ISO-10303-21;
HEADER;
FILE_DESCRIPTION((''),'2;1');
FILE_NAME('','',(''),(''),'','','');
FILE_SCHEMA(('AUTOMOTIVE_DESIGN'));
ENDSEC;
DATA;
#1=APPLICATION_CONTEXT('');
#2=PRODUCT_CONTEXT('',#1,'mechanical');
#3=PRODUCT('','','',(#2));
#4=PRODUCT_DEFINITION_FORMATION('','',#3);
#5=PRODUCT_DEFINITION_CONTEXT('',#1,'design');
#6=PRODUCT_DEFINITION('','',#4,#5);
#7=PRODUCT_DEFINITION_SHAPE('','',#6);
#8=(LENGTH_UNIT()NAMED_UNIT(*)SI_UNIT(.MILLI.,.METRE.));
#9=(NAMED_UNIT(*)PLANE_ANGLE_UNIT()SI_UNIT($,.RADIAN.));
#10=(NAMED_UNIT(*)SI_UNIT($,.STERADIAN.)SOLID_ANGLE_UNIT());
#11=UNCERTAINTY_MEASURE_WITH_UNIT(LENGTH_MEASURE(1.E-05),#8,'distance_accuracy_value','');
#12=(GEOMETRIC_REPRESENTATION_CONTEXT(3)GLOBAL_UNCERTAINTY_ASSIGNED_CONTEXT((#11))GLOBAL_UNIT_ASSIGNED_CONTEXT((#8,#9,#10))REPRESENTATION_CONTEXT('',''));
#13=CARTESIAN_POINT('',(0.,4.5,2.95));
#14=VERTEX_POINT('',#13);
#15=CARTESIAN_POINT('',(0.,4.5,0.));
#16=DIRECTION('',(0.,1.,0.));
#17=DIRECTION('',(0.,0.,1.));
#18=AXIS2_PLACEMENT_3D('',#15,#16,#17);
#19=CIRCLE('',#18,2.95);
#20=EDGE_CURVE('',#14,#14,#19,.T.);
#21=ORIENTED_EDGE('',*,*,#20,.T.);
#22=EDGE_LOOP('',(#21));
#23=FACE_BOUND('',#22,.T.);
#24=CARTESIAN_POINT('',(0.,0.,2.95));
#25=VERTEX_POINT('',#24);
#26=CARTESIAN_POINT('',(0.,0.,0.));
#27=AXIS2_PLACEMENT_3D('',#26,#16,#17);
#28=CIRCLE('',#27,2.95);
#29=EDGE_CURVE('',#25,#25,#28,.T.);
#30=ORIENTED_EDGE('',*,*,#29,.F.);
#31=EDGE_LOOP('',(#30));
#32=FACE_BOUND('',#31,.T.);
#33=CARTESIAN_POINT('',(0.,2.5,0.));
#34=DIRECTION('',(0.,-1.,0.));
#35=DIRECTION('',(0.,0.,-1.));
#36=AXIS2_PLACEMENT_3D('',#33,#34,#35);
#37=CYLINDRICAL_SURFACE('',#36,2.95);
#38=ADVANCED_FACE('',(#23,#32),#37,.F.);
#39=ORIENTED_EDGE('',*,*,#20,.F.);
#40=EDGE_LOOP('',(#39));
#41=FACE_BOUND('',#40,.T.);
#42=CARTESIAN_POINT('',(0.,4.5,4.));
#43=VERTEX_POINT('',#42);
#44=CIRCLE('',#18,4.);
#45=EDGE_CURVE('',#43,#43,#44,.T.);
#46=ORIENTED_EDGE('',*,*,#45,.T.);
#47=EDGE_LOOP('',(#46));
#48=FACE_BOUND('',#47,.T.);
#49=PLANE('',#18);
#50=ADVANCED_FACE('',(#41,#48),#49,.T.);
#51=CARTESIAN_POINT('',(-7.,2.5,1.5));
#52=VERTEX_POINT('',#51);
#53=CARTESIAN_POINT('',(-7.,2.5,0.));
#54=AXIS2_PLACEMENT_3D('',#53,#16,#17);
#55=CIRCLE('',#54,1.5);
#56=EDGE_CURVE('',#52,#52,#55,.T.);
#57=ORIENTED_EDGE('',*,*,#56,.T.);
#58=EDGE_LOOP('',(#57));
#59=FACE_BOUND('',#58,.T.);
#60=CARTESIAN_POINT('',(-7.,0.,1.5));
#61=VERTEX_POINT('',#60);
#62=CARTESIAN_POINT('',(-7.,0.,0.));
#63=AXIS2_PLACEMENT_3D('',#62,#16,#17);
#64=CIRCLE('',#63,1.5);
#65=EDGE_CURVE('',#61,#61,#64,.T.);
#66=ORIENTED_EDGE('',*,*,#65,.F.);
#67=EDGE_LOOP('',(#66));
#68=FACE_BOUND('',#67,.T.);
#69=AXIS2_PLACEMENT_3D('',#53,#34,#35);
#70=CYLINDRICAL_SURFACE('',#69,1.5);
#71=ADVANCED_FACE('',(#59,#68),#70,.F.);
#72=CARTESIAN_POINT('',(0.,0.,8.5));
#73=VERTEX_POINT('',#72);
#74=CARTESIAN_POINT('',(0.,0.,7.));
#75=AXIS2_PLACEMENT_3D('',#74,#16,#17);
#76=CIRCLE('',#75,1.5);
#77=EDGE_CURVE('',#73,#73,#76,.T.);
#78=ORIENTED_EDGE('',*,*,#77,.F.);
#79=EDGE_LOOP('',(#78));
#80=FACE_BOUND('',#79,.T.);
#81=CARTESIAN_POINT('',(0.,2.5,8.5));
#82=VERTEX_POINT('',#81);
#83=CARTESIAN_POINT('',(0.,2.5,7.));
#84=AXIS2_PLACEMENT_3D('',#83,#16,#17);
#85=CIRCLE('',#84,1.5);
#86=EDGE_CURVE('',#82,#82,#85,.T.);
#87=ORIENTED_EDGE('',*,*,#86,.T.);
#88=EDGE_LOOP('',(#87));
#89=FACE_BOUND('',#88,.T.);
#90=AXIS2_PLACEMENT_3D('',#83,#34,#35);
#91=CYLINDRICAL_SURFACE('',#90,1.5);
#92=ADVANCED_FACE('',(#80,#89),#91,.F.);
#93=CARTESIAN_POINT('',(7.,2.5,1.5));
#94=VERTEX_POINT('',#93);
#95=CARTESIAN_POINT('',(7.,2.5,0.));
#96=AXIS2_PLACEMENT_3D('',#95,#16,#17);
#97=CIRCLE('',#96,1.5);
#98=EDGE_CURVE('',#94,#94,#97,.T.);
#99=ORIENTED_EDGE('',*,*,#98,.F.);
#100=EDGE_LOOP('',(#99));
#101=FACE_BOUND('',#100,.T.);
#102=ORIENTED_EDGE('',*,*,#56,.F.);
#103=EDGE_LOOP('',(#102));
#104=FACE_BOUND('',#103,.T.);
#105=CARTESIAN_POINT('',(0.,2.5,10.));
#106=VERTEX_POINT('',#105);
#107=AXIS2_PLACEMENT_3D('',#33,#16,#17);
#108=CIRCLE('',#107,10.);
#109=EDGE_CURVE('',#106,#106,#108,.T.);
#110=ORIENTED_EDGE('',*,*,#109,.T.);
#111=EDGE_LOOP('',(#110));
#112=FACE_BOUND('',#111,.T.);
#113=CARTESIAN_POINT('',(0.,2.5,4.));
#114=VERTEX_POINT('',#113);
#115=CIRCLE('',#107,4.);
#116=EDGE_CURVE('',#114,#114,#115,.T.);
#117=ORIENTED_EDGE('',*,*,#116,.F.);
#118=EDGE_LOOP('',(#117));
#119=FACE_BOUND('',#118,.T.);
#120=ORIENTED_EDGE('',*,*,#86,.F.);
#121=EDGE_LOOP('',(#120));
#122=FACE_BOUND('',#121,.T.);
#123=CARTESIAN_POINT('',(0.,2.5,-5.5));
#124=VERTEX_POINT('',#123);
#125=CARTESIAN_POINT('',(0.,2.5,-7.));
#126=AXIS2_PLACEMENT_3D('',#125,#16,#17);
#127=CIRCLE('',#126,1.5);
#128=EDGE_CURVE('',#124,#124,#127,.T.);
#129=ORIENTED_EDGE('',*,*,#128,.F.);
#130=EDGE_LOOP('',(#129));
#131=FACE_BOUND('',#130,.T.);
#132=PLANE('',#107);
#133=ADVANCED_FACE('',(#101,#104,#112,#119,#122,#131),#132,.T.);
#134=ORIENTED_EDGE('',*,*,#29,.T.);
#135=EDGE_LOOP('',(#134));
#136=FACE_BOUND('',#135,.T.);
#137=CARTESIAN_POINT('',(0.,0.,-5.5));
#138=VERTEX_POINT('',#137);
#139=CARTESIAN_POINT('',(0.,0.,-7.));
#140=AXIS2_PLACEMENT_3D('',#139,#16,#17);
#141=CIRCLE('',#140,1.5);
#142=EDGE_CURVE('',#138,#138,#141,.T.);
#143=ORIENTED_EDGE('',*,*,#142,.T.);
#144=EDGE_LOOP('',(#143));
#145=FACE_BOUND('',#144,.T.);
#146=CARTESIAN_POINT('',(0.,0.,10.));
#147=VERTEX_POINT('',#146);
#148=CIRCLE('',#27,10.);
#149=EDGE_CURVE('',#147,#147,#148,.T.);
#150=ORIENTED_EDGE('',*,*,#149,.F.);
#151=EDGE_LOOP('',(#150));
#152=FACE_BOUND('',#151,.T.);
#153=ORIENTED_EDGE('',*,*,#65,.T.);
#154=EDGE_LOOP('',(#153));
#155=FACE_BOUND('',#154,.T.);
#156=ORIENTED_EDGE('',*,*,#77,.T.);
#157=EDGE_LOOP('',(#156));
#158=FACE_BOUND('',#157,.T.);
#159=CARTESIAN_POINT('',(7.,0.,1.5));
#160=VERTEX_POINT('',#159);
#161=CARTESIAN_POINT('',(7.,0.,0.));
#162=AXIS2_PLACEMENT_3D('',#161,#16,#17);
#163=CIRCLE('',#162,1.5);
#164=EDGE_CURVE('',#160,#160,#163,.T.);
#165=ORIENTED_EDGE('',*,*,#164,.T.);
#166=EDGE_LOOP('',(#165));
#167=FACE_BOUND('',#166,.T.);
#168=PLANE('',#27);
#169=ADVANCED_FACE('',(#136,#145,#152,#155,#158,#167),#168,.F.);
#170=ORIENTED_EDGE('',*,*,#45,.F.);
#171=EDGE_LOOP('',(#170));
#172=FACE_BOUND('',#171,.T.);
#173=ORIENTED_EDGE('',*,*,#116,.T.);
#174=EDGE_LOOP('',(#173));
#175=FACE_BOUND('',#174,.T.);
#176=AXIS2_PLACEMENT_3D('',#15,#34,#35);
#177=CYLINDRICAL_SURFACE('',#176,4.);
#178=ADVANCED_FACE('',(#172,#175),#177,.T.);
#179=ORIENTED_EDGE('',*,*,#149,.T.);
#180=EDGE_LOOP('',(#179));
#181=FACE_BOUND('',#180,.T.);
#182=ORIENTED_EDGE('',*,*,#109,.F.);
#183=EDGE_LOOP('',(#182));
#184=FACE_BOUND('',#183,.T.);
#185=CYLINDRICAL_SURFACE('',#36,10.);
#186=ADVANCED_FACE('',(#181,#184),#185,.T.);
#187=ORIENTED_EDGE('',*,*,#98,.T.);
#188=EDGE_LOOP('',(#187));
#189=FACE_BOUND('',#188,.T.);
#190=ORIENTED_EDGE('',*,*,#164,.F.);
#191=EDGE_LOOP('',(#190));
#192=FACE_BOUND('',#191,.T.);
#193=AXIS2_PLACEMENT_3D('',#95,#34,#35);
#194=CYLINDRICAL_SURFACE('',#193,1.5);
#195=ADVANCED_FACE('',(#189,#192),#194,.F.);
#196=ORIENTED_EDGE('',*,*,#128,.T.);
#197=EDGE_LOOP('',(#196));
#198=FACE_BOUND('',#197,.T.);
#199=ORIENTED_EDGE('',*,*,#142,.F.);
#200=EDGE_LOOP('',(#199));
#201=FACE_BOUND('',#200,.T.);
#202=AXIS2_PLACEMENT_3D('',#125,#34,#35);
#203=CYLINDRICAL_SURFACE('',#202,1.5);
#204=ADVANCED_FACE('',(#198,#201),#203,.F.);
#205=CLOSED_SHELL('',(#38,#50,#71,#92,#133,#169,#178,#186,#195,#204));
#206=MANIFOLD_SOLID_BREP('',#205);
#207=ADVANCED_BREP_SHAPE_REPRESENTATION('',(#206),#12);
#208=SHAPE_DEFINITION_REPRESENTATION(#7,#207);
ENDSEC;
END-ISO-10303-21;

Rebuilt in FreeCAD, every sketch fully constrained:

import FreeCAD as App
import Part
import Sketcher

V = App.Vector
Q = App.Units.Quantity

doc = App.newDocument("Part")
body = doc.addObject("PartDesign::Body", "Body")

# Sketch on XZ plane
sketch1 = body.newObject("Sketcher::SketchObject", "Sketch")
sketch1.AttachmentSupport = (doc.getObject("XZ_Plane"), [""])
sketch1.MapMode = "FlatFace"
sketch1.addGeometry([
    Part.Circle(V(0, 0, 0), V(0, 0, 1), 10),  # 0
    Part.Circle(V(0, 7, 0), V(0, 0, 1), 1.5),  # 1
    Part.Circle(V(-7, 0, 0), V(0, 0, 1), 1.5),  # 2
    Part.Circle(V(0, 0, 0), V(0, 0, 1), 3),  # 3
    Part.Circle(V(7, 0, 0), V(0, 0, 1), 1.5),  # 4
    Part.Circle(V(0, -7, 0), V(0, 0, 1), 1.5),  # 5
], False)
sketch1.addConstraint([
    Sketcher.Constraint("Coincident", 0, 3, -1, 1),
    Sketcher.Constraint("Coincident", 3, 3, -1, 1),
    Sketcher.Constraint("Equal", 1, 2),
    Sketcher.Constraint("Equal", 2, 4),
    Sketcher.Constraint("Equal", 4, 5),
    Sketcher.Constraint("Symmetric", 2, 3, 4, 3, -1, 1),
    Sketcher.Constraint("Symmetric", 1, 3, 5, 3, -1, 1),
    Sketcher.Constraint("PointOnObject", 1, 3, -2),
    Sketcher.Constraint("PointOnObject", 2, 3, -1),
    Sketcher.Constraint("Diameter", 0, Q("20 mm")),
    Sketcher.Constraint("Diameter", 1, Q("3 mm")),
    Sketcher.Constraint("Diameter", 3, Q("5.9 mm")),
    Sketcher.Constraint("DistanceY", -1, 1, 1, 3, Q("7 mm")),
    Sketcher.Constraint("DistanceX", 2, 3, -1, 1, Q("7 mm")),
])
pad1 = body.newObject("PartDesign::Pad", "Pad")
pad1.Profile = sketch1
pad1.Length = 2.5
pad1.Reversed = True

# Sketch on XZ plane
sketch2 = body.newObject("Sketcher::SketchObject", "Sketch001")
sketch2.AttachmentSupport = (doc.getObject("XZ_Plane"), [""])
sketch2.MapMode = "FlatFace"
sketch2.AttachmentOffset = App.Placement(V(0, 0, -2.5), App.Rotation())
sketch2.addGeometry([
    Part.Circle(V(0, 0, 0), V(0, 0, 1), 4),
    Part.Circle(V(0, 0, 0), V(0, 0, 1), 3),
], False)
sketch2.addConstraint([
    Sketcher.Constraint("Coincident", 0, 3, -1, 1),
    Sketcher.Constraint("Coincident", 1, 3, -1, 1),
    Sketcher.Constraint("Diameter", 0, Q("8 mm")),
    Sketcher.Constraint("Diameter", 1, Q("5.9 mm")),
])
pad2 = body.newObject("PartDesign::Pad", "Pad001")
pad2.Profile = sketch2
pad2.Length = 2
pad2.Reversed = True

doc.recompute()
